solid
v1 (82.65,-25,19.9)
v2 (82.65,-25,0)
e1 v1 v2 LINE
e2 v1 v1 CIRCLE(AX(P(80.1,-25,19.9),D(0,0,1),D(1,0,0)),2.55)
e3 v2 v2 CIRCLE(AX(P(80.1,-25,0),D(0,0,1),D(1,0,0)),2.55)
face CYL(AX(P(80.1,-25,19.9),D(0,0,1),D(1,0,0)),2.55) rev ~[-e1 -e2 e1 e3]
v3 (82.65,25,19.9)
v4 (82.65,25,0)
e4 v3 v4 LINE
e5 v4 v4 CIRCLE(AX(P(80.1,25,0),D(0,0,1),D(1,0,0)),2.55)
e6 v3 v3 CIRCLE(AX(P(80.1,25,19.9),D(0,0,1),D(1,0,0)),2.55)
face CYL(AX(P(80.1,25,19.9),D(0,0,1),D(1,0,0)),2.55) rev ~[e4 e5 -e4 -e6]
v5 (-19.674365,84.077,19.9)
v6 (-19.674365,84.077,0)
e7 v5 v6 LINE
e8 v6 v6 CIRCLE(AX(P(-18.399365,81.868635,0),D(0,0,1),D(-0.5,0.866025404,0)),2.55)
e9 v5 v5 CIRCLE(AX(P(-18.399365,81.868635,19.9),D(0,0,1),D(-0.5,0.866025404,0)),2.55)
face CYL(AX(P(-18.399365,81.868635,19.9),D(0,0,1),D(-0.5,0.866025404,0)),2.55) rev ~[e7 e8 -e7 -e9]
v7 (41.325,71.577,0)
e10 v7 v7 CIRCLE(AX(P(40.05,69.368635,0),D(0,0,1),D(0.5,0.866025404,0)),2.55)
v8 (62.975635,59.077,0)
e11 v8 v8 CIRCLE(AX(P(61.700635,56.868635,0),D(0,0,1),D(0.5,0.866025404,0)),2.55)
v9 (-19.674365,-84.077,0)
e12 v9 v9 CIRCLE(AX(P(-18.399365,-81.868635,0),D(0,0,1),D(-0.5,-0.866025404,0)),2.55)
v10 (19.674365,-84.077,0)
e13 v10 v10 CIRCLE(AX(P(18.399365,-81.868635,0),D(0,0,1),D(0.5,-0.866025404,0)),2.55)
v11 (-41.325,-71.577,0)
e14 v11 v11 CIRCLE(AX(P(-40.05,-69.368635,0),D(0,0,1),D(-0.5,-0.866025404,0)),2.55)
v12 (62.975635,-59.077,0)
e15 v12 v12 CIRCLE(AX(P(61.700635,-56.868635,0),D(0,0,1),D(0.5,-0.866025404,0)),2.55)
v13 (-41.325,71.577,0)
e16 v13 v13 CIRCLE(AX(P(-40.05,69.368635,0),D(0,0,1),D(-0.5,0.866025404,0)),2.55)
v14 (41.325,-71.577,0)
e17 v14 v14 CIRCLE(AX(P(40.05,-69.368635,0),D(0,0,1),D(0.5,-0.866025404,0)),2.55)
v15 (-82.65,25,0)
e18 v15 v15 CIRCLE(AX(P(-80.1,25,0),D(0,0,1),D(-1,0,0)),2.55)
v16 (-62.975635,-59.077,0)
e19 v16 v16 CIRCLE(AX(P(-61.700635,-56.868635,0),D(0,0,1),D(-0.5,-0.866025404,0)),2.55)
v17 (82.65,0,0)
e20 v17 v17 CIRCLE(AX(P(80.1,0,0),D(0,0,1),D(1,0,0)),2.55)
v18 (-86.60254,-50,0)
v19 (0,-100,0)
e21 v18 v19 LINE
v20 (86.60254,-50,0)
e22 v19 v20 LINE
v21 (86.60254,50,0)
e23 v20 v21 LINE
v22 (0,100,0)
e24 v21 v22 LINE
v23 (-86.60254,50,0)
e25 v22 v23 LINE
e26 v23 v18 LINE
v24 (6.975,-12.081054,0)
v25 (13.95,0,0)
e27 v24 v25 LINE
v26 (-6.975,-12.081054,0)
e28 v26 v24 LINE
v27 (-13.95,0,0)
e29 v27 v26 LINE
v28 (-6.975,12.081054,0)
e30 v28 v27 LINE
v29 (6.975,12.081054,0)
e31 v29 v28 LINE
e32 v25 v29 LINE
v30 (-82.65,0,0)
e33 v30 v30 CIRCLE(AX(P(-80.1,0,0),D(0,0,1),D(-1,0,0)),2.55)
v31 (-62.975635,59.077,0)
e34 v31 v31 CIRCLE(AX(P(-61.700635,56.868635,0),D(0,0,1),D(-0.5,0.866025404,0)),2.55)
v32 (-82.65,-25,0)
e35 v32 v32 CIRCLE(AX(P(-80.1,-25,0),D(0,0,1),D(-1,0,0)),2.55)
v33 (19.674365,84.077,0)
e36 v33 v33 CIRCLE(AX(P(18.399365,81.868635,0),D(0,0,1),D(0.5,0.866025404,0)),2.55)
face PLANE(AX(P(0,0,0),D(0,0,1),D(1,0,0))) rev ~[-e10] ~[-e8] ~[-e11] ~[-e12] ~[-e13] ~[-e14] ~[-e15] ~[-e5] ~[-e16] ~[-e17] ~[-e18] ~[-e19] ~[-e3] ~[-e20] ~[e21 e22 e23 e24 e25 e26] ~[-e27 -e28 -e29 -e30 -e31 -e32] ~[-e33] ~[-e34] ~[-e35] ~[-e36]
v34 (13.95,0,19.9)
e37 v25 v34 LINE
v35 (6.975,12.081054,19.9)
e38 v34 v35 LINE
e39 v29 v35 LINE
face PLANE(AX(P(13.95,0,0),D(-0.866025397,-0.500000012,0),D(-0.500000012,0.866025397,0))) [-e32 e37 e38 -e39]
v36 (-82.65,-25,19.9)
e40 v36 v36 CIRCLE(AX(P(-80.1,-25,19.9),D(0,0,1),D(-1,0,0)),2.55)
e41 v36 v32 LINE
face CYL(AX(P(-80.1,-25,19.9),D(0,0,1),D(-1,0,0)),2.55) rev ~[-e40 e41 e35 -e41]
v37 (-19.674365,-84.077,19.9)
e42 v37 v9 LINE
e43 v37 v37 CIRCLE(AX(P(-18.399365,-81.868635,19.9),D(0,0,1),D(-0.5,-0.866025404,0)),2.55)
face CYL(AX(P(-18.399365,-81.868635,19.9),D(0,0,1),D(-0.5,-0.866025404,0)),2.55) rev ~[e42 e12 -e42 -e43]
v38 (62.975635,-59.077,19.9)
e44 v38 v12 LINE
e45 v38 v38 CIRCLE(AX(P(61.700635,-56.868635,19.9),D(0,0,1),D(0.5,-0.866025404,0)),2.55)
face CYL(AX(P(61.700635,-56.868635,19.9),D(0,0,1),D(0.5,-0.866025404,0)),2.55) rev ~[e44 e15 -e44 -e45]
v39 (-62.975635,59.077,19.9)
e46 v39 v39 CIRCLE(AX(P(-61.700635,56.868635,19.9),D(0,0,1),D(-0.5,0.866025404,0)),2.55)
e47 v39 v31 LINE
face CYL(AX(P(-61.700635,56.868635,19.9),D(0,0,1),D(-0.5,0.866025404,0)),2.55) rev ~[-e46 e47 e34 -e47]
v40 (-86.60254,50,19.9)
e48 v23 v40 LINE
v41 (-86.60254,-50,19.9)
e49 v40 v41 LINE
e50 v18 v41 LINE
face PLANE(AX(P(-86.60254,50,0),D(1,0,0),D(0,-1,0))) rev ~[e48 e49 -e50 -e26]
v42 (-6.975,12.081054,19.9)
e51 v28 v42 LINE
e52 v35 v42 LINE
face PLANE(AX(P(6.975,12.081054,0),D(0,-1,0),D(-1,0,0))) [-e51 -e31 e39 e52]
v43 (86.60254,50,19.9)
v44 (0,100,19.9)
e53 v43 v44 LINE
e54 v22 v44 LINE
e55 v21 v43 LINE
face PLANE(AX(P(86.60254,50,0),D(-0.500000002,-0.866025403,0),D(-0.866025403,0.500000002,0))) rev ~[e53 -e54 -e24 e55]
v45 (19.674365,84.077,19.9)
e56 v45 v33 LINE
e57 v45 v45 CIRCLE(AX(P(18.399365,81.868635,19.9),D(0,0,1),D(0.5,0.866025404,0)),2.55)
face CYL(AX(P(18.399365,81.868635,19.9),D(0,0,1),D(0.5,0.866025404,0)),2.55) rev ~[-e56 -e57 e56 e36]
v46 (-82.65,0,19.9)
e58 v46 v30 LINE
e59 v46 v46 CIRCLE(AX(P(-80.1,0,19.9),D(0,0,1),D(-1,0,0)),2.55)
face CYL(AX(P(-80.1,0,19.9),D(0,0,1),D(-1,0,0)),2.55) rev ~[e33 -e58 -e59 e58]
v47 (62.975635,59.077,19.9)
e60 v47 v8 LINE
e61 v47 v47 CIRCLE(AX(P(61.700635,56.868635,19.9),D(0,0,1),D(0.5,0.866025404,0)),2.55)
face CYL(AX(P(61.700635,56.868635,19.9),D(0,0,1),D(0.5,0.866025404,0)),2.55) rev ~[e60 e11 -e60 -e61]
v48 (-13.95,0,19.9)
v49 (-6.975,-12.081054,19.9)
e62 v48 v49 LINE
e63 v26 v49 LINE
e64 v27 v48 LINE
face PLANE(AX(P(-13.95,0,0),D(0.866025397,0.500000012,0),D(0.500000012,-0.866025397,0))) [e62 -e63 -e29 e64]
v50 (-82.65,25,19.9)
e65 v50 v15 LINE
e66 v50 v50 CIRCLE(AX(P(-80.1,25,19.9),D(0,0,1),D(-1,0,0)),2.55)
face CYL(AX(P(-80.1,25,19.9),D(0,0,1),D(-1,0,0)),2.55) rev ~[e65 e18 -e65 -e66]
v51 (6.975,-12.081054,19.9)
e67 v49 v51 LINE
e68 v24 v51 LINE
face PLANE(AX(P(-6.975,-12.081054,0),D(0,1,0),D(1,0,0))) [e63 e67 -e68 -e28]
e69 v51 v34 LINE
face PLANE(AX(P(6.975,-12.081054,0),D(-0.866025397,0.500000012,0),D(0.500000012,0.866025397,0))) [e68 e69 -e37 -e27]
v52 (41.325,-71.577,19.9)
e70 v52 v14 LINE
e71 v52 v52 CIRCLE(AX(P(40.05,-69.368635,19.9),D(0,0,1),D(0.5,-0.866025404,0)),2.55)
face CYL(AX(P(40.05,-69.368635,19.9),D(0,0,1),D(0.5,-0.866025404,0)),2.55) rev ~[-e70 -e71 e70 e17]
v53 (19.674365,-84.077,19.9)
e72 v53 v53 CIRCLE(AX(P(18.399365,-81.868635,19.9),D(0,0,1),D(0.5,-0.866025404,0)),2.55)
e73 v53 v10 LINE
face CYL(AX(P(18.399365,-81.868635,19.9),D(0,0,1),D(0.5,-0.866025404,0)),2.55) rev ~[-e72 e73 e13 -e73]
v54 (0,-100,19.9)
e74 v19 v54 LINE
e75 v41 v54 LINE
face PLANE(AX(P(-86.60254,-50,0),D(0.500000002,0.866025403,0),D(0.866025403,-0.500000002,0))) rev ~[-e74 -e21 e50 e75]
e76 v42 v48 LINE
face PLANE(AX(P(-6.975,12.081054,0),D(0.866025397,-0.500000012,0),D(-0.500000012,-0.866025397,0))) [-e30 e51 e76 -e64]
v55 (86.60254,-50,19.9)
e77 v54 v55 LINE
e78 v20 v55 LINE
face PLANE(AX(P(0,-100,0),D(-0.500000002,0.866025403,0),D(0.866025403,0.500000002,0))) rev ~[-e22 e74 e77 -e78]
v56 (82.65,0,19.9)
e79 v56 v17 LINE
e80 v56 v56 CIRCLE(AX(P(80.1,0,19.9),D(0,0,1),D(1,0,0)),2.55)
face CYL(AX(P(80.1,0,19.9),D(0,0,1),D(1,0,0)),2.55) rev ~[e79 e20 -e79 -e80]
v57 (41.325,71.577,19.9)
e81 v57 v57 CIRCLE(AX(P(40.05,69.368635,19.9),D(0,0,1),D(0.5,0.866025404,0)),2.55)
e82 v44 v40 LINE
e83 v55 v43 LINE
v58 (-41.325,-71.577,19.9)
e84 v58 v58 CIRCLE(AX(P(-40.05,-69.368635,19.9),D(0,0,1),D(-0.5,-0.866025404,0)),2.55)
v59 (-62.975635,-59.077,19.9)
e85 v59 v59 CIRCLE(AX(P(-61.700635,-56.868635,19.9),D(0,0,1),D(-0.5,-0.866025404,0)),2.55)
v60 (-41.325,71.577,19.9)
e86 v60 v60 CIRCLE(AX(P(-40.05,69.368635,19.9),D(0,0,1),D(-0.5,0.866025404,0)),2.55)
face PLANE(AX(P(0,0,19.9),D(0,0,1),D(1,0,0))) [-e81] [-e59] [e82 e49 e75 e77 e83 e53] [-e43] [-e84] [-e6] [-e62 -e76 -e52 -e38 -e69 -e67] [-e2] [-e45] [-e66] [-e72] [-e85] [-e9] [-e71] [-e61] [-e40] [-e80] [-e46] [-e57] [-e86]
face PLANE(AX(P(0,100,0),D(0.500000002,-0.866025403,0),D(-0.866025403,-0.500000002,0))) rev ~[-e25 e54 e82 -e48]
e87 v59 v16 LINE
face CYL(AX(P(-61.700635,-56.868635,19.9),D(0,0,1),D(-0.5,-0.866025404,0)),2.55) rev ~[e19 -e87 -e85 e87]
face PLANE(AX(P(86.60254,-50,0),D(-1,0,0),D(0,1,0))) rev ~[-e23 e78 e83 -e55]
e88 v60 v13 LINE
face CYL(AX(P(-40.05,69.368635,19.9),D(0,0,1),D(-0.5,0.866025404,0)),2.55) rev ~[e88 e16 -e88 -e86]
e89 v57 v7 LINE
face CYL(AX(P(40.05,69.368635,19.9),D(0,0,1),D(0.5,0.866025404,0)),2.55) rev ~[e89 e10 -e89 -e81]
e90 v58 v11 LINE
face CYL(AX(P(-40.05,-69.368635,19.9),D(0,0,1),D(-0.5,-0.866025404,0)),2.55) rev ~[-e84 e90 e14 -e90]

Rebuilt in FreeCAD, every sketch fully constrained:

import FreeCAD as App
import Part
import Sketcher
from FreeCAD import Vector
Q = App.Units.Quantity

doc = App.newDocument("Part")
body = doc.addObject("PartDesign::Body", "Body")

# Sketch on XY plane
sketch1 = body.newObject("Sketcher::SketchObject", "Sketch")
sketch1.AttachmentSupport = (doc.getObject("XY_Plane"), [""])
sketch1.MapMode = "FlatFace"
sketch1.addGeometry([
    Part.LineSegment(Vector(0, 100, 0), Vector(-87, 50, 0)),  # 0
    Part.LineSegment(Vector(-87, 50, 0), Vector(-87, -50, 0)),  # 1
    Part.LineSegment(Vector(-87, -50, 0), Vector(0, -100, 0)),  # 2
    Part.LineSegment(Vector(0, -100, 0), Vector(87, -50, 0)),  # 3
    Part.LineSegment(Vector(87, -50, 0), Vector(87, 50, 0)),  # 4
    Part.LineSegment(Vector(87, 50, 0), Vector(0, 100, 0)),  # 5
    Part.LineSegment(Vector(-7, -12, 0), Vector(-14, 0, 0)),  # 6
    Part.LineSegment(Vector(-14, 0, 0), Vector(-7, 12, 0)),  # 7
    Part.LineSegment(Vector(-7, 12, 0), Vector(7, 12, 0)),  # 8
    Part.LineSegment(Vector(7, 12, 0), Vector(14, 0, 0)),  # 9
    Part.LineSegment(Vector(14, 0, 0), Vector(7, -12, 0)),  # 10
    Part.LineSegment(Vector(7, -12, 0), Vector(-7, -12, 0)),  # 11
], False)
sketch1.addConstraint([
    Sketcher.Constraint("Coincident", 0, 2, 1, 1),
    Sketcher.Constraint("Coincident", 1, 2, 2, 1),
    Sketcher.Constraint("Coincident", 2, 2, 3, 1),
    Sketcher.Constraint("Coincident", 3, 2, 4, 1),
    Sketcher.Constraint("Coincident", 4, 2, 5, 1),
    Sketcher.Constraint("Coincident", 5, 2, 0, 1),
    Sketcher.Constraint("Coincident", 6, 2, 7, 1),
    Sketcher.Constraint("Coincident", 7, 2, 8, 1),
    Sketcher.Constraint("Coincident", 8, 2, 9, 1),
    Sketcher.Constraint("Coincident", 9, 2, 10, 1),
    Sketcher.Constraint("Coincident", 10, 2, 11, 1),
    Sketcher.Constraint("Coincident", 11, 2, 6, 1),
    Sketcher.Constraint("Vertical", 1),
    Sketcher.Constraint("Vertical", 4),
    Sketcher.Constraint("Horizontal", 8),
    Sketcher.Constraint("Horizontal", 11),
    Sketcher.Constraint("Symmetric", 0, 2, 3, 2, -1, 1),
    Sketcher.Constraint("Symmetric", 2, 2, 5, 2, -1, 1),
    Sketcher.Constraint("Symmetric", 6, 2, 9, 2, -1, 1),
    Sketcher.Constraint("Symmetric", 7, 2, 10, 2, -1, 1),
    Sketcher.Constraint("PointOnObject", 2, 2, -2),
    Sketcher.Constraint("PointOnObject", 6, 2, -1),
    Sketcher.Constraint("Parallel", 2, 5),
    Sketcher.Constraint("Perpendicular", 3, 6),
    Sketcher.Constraint("Perpendicular", 5, 7),
    Sketcher.Constraint("Parallel", 6, 9),
    Sketcher.Constraint("Horizontal", 1, 2, 3, 2),
    Sketcher.Constraint("DistanceY", 1, 2, 1, 1, Q("100 mm")),
    Sketcher.Constraint("Angle", 0, Q("-150 deg")),
    Sketcher.Constraint("Distance", 0, Q("100 mm")),
    Sketcher.Constraint("DistanceX", 8, 1, 8, 2, Q("13.95 mm")),
    Sketcher.Constraint("DistanceX", 6, 2, 9, 2, Q("27.9 mm")),
])
pad1 = body.newObject("PartDesign::Pad", "Pad")
pad1.Profile = sketch1
pad1.Length = 19.9

# Sketch on XY plane
sketch2 = body.newObject("Sketcher::SketchObject", "Sketch001")
sketch2.AttachmentSupport = (doc.getObject("XY_Plane"), [""])
sketch2.MapMode = "FlatFace"
sketch2.AttachmentOffset = App.Placement(Vector(0, 0, 19.9), App.Rotation())
sketch2.addGeometry([
    Part.Circle(Vector(80.1, 25, 0), Vector(0, 0, 1), 2.5),
    Part.Circle(Vector(80.1, -25, 0), Vector(0, 0, 1), 2.5),
    Part.Circle(Vector(80.1, 0, 0), Vector(0, 0, 1), 2.5),
], False)
sketch2.addConstraint([
    Sketcher.Constraint("Equal", 0, 1),
    Sketcher.Constraint("Equal", 1, 2),
    Sketcher.Constraint("Symmetric", 0, 3, 1, 3, -1),
    Sketcher.Constraint("PointOnObject", 2, 3, -1),
    Sketcher.Constraint("Vertical", 1, 3, 2, 3),
    Sketcher.Constraint("Diameter", 0, Q("5.1 mm")),
    Sketcher.Constraint("DistanceY", -1, 1, 0, 3, Q("25 mm")),
    Sketcher.Constraint("DistanceX", -1, 1, 0, 3, Q("80.1 mm")),
])
pocket1 = body.newObject("PartDesign::Pocket", "Pocket")
pocket1.Profile = sketch2
pocket1.Type = "ThroughAll"
doc.recompute()

polarpattern = body.newObject("PartDesign::PolarPattern", "PolarPattern")
polarpattern.Originals = [pocket1]
polarpattern.Axis = (doc.getObject("Z_Axis"), [""])
polarpattern.Angle = 360
polarpattern.Occurrences = 6
body.Tip = polarpattern

doc.recompute()
